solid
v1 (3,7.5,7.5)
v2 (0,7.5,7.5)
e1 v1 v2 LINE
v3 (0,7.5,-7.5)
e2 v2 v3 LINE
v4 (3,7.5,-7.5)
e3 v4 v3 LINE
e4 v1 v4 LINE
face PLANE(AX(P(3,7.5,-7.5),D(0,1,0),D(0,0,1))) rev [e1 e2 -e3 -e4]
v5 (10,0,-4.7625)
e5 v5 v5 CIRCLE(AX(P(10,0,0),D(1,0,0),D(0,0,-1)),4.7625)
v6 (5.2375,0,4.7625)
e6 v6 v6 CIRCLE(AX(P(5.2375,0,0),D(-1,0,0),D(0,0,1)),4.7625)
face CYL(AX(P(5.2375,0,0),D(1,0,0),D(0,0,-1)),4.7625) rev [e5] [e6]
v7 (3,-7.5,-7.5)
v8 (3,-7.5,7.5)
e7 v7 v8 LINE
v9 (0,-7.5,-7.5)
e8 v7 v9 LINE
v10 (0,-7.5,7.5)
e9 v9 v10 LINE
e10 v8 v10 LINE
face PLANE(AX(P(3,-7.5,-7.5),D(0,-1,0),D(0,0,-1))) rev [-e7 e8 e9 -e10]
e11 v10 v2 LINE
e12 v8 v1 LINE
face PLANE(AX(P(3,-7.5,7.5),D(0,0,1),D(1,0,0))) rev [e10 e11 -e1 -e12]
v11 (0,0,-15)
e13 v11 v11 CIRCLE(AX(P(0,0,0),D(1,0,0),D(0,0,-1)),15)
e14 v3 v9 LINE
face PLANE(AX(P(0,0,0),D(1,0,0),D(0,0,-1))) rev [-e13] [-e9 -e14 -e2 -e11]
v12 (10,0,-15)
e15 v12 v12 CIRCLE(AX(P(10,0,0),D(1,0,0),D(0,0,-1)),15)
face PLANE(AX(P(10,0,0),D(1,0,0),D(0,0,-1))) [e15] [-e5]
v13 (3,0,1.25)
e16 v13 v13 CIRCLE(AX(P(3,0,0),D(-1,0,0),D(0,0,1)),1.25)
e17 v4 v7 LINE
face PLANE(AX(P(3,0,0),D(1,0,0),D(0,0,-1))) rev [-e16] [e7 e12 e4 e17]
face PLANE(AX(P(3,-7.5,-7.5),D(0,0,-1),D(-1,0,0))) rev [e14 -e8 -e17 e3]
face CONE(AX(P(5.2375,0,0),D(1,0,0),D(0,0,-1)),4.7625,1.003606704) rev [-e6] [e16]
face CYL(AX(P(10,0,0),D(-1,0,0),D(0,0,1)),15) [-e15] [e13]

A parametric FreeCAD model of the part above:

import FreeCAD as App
import Part
import Sketcher

V = App.Vector
Q = App.Units.Quantity

doc = App.newDocument("Part")
body = doc.addObject("PartDesign::Body", "Body")

sketch1 = body.newObject("Sketcher::SketchObject", "Sketch")
sketch1.AttachmentSupport = (doc.getObject("YZ_Plane"), [""])
sketch1.MapMode = "FlatFace"
sketch1.addGeometry(Part.Circle(V(0, 0, 0), V(0, 0, 1), 15), False)
sketch1.addConstraint([
    Sketcher.Constraint("Coincident", 0, 3, -1, 1),
    Sketcher.Constraint("Diameter", 0, Q("30 mm")),
])
pad1 = body.newObject("PartDesign::Pad", "Pad")
pad1.Profile = sketch1
pad1.Length = 10

sketch2 = body.newObject("Sketcher::SketchObject", "Sketch001")
sketch2.AttachmentSupport = (doc.getObject("YZ_Plane"), [""])
sketch2.MapMode = "FlatFace"
sketch2.addGeometry([
    Part.LineSegment(V(7.5, -7.5, 0), V(-7.5, -7.5, 0)),
    Part.LineSegment(V(-7.5, -7.5, 0), V(-7.5, 7.5, 0)),
    Part.LineSegment(V(-7.5, 7.5, 0), V(7.5, 7.5, 0)),
    Part.LineSegment(V(7.5, 7.5, 0), V(7.5, -7.5, 0)),
], False)
sketch2.addConstraint([
    Sketcher.Constraint("Coincident", 0, 2, 1, 1),
    Sketcher.Constraint("Coincident", 1, 2, 2, 1),
    Sketcher.Constraint("Coincident", 2, 2, 3, 1),
    Sketcher.Constraint("Coincident", 3, 2, 0, 1),
    Sketcher.Constraint("Horizontal", 0),
    Sketcher.Constraint("Vertical", 1),
    Sketcher.Constraint("Horizontal", 2),
    Sketcher.Constraint("Vertical", 3),
    Sketcher.Constraint("Symmetric", 0, 2, 2, 2, -1, 1),
    Sketcher.Constraint("Equal", 2, 1),
    Sketcher.Constraint("DistanceX", 0, 2, 0, 1, Q("15 mm")),
])
pocket1 = body.newObject("PartDesign::Pocket", "Pocket")
pocket1.Profile = sketch2
pocket1.Length = 3
pocket1.Reversed = True

sketch3 = body.newObject("Sketcher::SketchObject", "Sketch002")
sketch3.AttachmentSupport = (doc.getObject("YZ_Plane"), [""])
sketch3.MapMode = "FlatFace"
sketch3.AttachmentOffset = App.Placement(V(0, 0, 10), App.Rotation())
sketch3.addGeometry(Part.Circle(V(0, 0, 0), V(0, 0, 1), 4.7625), False)
sketch3.addConstraint([
    Sketcher.Constraint("Coincident", 0, 3, -1, 1),
    Sketcher.Constraint("Diameter", 0, Q("9.525 mm")),
])
pocket2 = body.newObject("PartDesign::Pocket", "Pocket001")
pocket2.Profile = sketch3
pocket2.Length = 4.7625

sketch4 = body.newObject("Sketcher::SketchObject", "Sketch003")
sketch4.AttachmentSupport = (doc.getObject("XY_Plane"), [""])
sketch4.MapMode = "FlatFace"
sketch4.addGeometry([
    Part.LineSegment(V(5.2375, 4.7625, 0), V(3, 1.25, 0)),
    Part.LineSegment(V(3, 1.25, 0), V(3, 0, 0)),
    Part.LineSegment(V(3, 0, 0), V(5.2375, 0, 0)),
    Part.LineSegment(V(5.2375, 0, 0), V(5.2375, 4.7625, 0)),
], False)
sketch4.addConstraint([
    Sketcher.Constraint("Coincident", 0, 2, 1, 1),
    Sketcher.Constraint("Coincident", 1, 2, 2, 1),
    Sketcher.Constraint("Coincident", 2, 2, 3, 1),
    Sketcher.Constraint("Coincident", 3, 2, 0, 1),
    Sketcher.Constraint("Vertical", 1),
    Sketcher.Constraint("Horizontal", 2),
    Sketcher.Constraint("Vertical", 3),
    Sketcher.Constraint("PointOnObject", 1, 2, -1),
    Sketcher.Constraint("DistanceX", -1, 1, 0, 2, Q("3 mm")),
    Sketcher.Constraint("DistanceY", 1, 2, 1, 1, Q("1.25 mm")),
    Sketcher.Constraint("DistanceX", 2, 1, 2, 2, Q("2.2375 mm")),
    Sketcher.Constraint("DistanceY", 3, 1, 3, 2, Q("4.7625 mm")),
])
groove = body.newObject("PartDesign::Groove", "Groove")
groove.Profile = sketch4
groove.ReferenceAxis = (sketch4, ["H_Axis"])
groove.Angle = 360

doc.recompute()
